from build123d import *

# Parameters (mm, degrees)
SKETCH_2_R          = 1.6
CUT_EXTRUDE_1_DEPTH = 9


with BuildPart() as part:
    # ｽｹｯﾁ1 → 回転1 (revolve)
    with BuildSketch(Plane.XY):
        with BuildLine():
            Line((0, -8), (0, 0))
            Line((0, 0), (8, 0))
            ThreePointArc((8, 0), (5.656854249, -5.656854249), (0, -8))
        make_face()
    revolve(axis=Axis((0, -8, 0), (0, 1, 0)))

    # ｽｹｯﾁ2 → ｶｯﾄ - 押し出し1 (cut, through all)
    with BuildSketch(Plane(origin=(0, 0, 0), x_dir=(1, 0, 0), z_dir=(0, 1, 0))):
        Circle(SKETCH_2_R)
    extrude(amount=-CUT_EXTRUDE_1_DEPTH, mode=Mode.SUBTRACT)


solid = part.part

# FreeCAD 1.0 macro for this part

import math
import FreeCAD as App
import Part
import Sketcher

V = App.Vector
Q = App.Units.Quantity

doc = App.newDocument("Part")
body = doc.addObject("PartDesign::Body", "Body")

sketch1 = body.newObject("Sketcher::SketchObject", "Sketch")
sketch1.AttachmentSupport = (doc.getObject("XY_Plane"), [""])
sketch1.MapMode = "FlatFace"
sketch1.addGeometry(Part.LineSegment(V(0, 0, 0), V(0, -8, 0)), False)
sketch1.addGeometry(Part.ArcOfCircle(Part.Circle(V(0, 0, 0), V(0, 0, 1), 8), math.radians(-90), math.radians(0)), False)
sketch1.addGeometry(Part.LineSegment(V(8, 0, 0), V(0, 0, 0)), False)
sketch1.addConstraint(Sketcher.Constraint("Coincident", 0, 2, 1, 1))
sketch1.addConstraint(Sketcher.Constraint("Coincident", 1, 2, 2, 1))
sketch1.addConstraint(Sketcher.Constraint("Coincident", 2, 2, 0, 1))
sketch1.addConstraint(Sketcher.Constraint("Vertical", 0))
sketch1.addConstraint(Sketcher.Constraint("Horizontal", 2))
sketch1.addConstraint(Sketcher.Constraint("Coincident", 1, 3, -1, 1))
sketch1.addConstraint(Sketcher.Constraint("Coincident", 2, 2, -1, 1))
sketch1.addConstraint(Sketcher.Constraint("Radius", 1, Q("8 mm")))
revolution = body.newObject("PartDesign::Revolution", "Revolution")
revolution.Profile = sketch1
revolution.ReferenceAxis = (sketch1, ["V_Axis"])
revolution.Angle = 360

sketch2 = body.newObject("Sketcher::SketchObject", "Sketch001")
sketch2.AttachmentSupport = (doc.getObject("XZ_Plane"), [""])
sketch2.MapMode = "FlatFace"
sketch2.addGeometry(Part.Circle(V(0, 0, 0), V(0, 0, 1), 1.6), False)
sketch2.addConstraint(Sketcher.Constraint("Coincident", 0, 3, -1, 1))
sketch2.addConstraint(Sketcher.Constraint("Diameter", 0, Q("3.2 mm")))
pocket1 = body.newObject("PartDesign::Pocket", "Pocket")
pocket1.Profile = sketch2
pocket1.Type = "ThroughAll"
pocket1.Reversed = True

doc.recompute()
